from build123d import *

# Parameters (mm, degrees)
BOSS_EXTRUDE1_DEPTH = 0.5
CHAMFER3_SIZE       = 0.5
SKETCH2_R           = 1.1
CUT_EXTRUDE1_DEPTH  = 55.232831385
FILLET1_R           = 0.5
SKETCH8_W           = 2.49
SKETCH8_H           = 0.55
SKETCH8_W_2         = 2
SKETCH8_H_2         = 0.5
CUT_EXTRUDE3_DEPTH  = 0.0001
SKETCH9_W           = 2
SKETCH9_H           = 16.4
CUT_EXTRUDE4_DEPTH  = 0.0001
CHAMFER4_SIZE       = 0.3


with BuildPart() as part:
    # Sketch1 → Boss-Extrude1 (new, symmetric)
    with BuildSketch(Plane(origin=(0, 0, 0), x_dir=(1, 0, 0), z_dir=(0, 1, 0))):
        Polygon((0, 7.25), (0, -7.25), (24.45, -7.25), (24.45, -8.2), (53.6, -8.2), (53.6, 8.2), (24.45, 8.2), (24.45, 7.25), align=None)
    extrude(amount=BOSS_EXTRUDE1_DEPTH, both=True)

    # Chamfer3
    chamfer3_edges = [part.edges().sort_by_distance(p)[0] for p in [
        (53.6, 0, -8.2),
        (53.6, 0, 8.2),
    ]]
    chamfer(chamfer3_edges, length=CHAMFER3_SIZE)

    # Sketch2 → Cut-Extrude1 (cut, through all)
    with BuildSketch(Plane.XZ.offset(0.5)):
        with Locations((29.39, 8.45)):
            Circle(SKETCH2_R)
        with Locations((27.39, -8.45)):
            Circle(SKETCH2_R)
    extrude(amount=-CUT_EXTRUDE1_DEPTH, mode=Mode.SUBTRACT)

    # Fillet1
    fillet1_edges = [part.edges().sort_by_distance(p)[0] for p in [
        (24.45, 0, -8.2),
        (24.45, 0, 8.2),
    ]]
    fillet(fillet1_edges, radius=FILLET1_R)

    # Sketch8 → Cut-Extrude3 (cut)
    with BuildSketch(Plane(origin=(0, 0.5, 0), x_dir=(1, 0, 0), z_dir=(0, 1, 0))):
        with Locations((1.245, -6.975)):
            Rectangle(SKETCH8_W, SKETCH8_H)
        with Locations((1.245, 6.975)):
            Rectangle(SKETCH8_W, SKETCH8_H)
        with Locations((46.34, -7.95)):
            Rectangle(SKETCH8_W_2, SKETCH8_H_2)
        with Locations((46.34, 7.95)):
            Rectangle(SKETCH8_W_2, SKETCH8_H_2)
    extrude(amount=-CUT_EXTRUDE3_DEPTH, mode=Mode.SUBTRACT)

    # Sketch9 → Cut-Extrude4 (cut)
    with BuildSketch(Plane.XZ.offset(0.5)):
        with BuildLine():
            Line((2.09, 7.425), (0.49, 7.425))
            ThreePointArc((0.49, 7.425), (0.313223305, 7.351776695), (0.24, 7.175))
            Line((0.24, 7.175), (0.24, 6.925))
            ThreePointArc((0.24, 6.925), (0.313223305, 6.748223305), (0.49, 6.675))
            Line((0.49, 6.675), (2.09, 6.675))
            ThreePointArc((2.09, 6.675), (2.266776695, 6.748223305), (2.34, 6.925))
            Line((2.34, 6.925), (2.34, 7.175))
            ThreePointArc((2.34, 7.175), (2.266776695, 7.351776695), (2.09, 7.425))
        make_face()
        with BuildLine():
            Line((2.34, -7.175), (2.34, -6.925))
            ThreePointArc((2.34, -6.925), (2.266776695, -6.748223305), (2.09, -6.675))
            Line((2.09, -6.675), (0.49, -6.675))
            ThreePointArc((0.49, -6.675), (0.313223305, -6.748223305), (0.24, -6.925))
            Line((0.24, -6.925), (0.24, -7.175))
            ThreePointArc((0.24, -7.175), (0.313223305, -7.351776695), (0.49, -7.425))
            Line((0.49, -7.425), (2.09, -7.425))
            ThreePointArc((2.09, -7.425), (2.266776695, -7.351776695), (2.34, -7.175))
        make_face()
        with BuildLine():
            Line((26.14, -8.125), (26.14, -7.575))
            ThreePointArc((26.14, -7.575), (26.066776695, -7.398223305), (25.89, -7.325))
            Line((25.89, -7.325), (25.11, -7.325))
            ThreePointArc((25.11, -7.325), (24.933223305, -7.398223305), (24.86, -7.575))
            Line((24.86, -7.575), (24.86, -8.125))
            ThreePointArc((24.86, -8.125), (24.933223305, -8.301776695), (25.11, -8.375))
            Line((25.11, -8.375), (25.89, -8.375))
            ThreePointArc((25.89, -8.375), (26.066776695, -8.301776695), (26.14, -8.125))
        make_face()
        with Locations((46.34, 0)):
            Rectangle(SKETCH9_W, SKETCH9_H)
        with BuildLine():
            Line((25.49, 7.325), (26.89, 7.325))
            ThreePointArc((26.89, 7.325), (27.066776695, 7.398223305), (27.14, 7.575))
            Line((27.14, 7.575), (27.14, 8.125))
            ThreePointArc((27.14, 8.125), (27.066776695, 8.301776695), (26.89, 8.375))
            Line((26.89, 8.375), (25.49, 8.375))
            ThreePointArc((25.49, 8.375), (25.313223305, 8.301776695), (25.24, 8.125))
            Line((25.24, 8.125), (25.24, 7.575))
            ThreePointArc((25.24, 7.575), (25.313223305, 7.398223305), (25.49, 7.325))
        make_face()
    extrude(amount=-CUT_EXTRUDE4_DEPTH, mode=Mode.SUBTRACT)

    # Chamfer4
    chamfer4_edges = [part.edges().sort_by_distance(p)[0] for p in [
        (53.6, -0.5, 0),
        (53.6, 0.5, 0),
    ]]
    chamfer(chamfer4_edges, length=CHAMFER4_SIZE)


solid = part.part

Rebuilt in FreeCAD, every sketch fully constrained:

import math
import FreeCAD as App
import Part
import Sketcher
from FreeCAD import Vector
Q = App.Units.Quantity


def edges_at(feature, points):
    """Names of the edges that pass closest to the given points."""
    edges = feature.Shape.Edges
    near = lambda p: min(range(len(edges)), key=lambda i: edges[i].distToShape(Part.Vertex(*p))[0])
    return sorted({f"Edge{near(p) + 1}" for p in points})


def add_polygon(sketch, points):
    """Adds a closed chain of lines whose ends are joined by coincident constraints."""
    first, n = sketch.GeometryCount, len(points)
    for a, b in zip(points, points[1:] + points[:1]):
        sketch.addGeometry(Part.LineSegment(App.Vector(*a, 0), App.Vector(*b, 0)), False)
    for i in range(n):
        sketch.addConstraint(Sketcher.Constraint("Coincident", first + i, 2, first + (i + 1) % n, 1))

doc = App.newDocument("Part")
body = doc.addObject("PartDesign::Body", "Body")

sketch1 = body.newObject("Sketcher::SketchObject", "Sketch")
sketch1.AttachmentSupport = (doc.getObject("XZ_Plane"), [""])
sketch1.MapMode = "FlatFace"
add_polygon(sketch1, [(0, -7.25), (0, 7.25), (24.45, 7.25), (24.45, 8.2), (53.6, 8.2), (53.6, -8.2), (24.45, -8.2), (24.45, -7.25)])
sketch1.addConstraint([
    Sketcher.Constraint("Vertical", 0),
    Sketcher.Constraint("Horizontal", 1),
    Sketcher.Constraint("Vertical", 2),
    Sketcher.Constraint("Horizontal", 3),
    Sketcher.Constraint("Vertical", 4),
    Sketcher.Constraint("Horizontal", 5),
    Sketcher.Constraint("Vertical", 6),
    Sketcher.Constraint("Horizontal", 7),
    Sketcher.Constraint("Symmetric", 0, 2, 7, 2, -1, 1),
    Sketcher.Constraint("Symmetric", 2, 2, 5, 2, -1),
    Sketcher.Constraint("DistanceY", 0, 1, 0, 2, Q("14.5 mm")),
    Sketcher.Constraint("DistanceY", 4, 2, 4, 1, Q("16.4 mm")),
    Sketcher.Constraint("DistanceX", 1, 1, 1, 2, Q("24.45 mm")),
    Sketcher.Constraint("DistanceX", 3, 1, 3, 2, Q("29.15 mm")),
])
pad1 = body.newObject("PartDesign::Pad", "Pad")
pad1.Profile = sketch1
pad1.Length = 1
pad1.Midplane = True
doc.recompute()

chamfer = body.newObject("PartDesign::Chamfer", "Chamfer")
chamfer.Base = (pad1, edges_at(pad1, [(53.6, 0, -8.2), (53.6, 0, 8.2)]))
chamfer.Size = 0.5

sketch2 = body.newObject("Sketcher::SketchObject", "Sketch001")
sketch2.AttachmentSupport = (doc.getObject("XZ_Plane"), [""])
sketch2.MapMode = "FlatFace"
sketch2.AttachmentOffset = App.Placement(Vector(0, 0, 0.5), App.Rotation())
sketch2.addGeometry([
    Part.Circle(Vector(29.39, 8.45, 0), Vector(0, 0, 1), 1.1),
    Part.Circle(Vector(27.39, -8.45, 0), Vector(0, 0, 1), 1.1),
], False)
sketch2.addConstraint([
    Sketcher.Constraint("Equal", 0, 1),
    Sketcher.Constraint("Diameter", 0, Q("2.2 mm")),
    Sketcher.Constraint("DistanceX", 1, 3, 0, 3, Q("2 mm")),
    Sketcher.Constraint("DistanceY", 1, 3, 0, 3, Q("16.9 mm")),
    Sketcher.Constraint("DistanceX", -1, 1, 0, 3, Q("29.39 mm")),
    Sketcher.Constraint("DistanceY", -1, 1, 0, 3, Q("8.45 mm")),
])
pocket1 = body.newObject("PartDesign::Pocket", "Pocket")
pocket1.Profile = sketch2
pocket1.Type = "ThroughAll"
doc.recompute()

fillet = body.newObject("PartDesign::Fillet", "Fillet")
fillet.Base = (pocket1, edges_at(pocket1, [(24.45, 0, -8.2), (24.45, 0, 8.2)]))
fillet.Radius = 0.5

sketch3 = body.newObject("Sketcher::SketchObject", "Sketch002")
sketch3.AttachmentSupport = (doc.getObject("XZ_Plane"), [""])
sketch3.MapMode = "FlatFace"
sketch3.AttachmentOffset = App.Placement(Vector(0, 0, -0.5), App.Rotation())
add_polygon(sketch3, [(0, 6.7), (0, 7.25), (2.49, 7.25), (2.49, 6.7)])
add_polygon(sketch3, [(0, -7.25), (0, -6.7), (2.49, -6.7), (2.49, -7.25)])
add_polygon(sketch3, [(45.34, 7.7), (45.34, 8.2), (47.34, 8.2), (47.34, 7.7)])
add_polygon(sketch3, [(45.34, -8.2), (45.34, -7.7), (47.34, -7.7), (47.34, -8.2)])
sketch3.addConstraint([
    Sketcher.Constraint("Vertical", 0),
    Sketcher.Constraint("Horizontal", 1),
    Sketcher.Constraint("Vertical", 2),
    Sketcher.Constraint("Horizontal", 3),
    Sketcher.Constraint("Vertical", 4),
    Sketcher.Constraint("Horizontal", 5),
    Sketcher.Constraint("Vertical", 6),
    Sketcher.Constraint("Horizontal", 7),
    Sketcher.Constraint("Vertical", 8),
    Sketcher.Constraint("Horizontal", 9),
    Sketcher.Constraint("Vertical", 10),
    Sketcher.Constraint("Horizontal", 11),
    Sketcher.Constraint("Vertical", 12),
    Sketcher.Constraint("Horizontal", 13),
    Sketcher.Constraint("Vertical", 14),
    Sketcher.Constraint("Horizontal", 15),
    Sketcher.Constraint("Symmetric", 3, 2, 4, 2, -1, 1),
    Sketcher.Constraint("Symmetric", 1, 2, 6, 2, -1),
    Sketcher.Constraint("Symmetric", 11, 2, 12, 2, -1),
    Sketcher.Constraint("Symmetric", 9, 2, 14, 2, -1),
    Sketcher.Constraint("PointOnObject", 0, 2, -2),
    Sketcher.Constraint("DistanceX", 9, 1, 9, 2, Q("2 mm")),
    Sketcher.Constraint("DistanceY", 8, 1, 8, 2, Q("0.5 mm")),
    Sketcher.Constraint("DistanceY", 2, 2, 10, 2, Q("1 mm")),
    Sketcher.Constraint("DistanceX", 1, 1, 1, 2, Q("2.49 mm")),
    Sketcher.Constraint("DistanceY", 0, 1, 0, 2, Q("0.55 mm")),
    Sketcher.Constraint("DistanceY", -1, 1, 2, 2, Q("6.7 mm")),
    Sketcher.Constraint("DistanceX", -1, 1, 8, 2, Q("45.34 mm")),
])
pocket2 = body.newObject("PartDesign::Pocket", "Pocket001")
pocket2.Profile = sketch3
pocket2.Length = 0.0001
pocket2.Reversed = True

sketch4 = body.newObject("Sketcher::SketchObject", "Sketch003")
sketch4.AttachmentSupport = (doc.getObject("XZ_Plane"), [""])
sketch4.MapMode = "FlatFace"
sketch4.AttachmentOffset = App.Placement(Vector(0, 0, 0.5), App.Rotation())
sketch4.addGeometry(Part.LineSegment(Vector(2.09, 7.425, 0), Vector(0.49, 7.425, 0)), False)
sketch4.addGeometry(Part.ArcOfCircle(Part.Circle(Vector(0.49, 7.175, 0), Vector(0, 0, 1), 0.25), math.radians(90), math.radians(180)), False)
sketch4.addGeometry(Part.LineSegment(Vector(0.24, 7.175, 0), Vector(0.24, 6.925, 0)), False)
sketch4.addGeometry(Part.ArcOfCircle(Part.Circle(Vector(0.49, 6.925, 0), Vector(0, 0, 1), 0.25), math.radians(-180), math.radians(-90)), False)
sketch4.addGeometry(Part.LineSegment(Vector(0.49, 6.675, 0), Vector(2.09, 6.675, 0)), False)
sketch4.addGeometry(Part.ArcOfCircle(Part.Circle(Vector(2.09, 6.925, 0), Vector(0, 0, 1), 0.25), math.radians(-90), math.radians(0)), False)
sketch4.addGeometry(Part.LineSegment(Vector(2.34, 6.925, 0), Vector(2.34, 7.175, 0)), False)
sketch4.addGeometry(Part.ArcOfCircle(Part.Circle(Vector(2.09, 7.175, 0), Vector(0, 0, 1), 0.25), math.radians(0), math.radians(90)), False)
sketch4.addGeometry(Part.LineSegment(Vector(2.34, -7.175, 0), Vector(2.34, -6.925, 0)), False)
sketch4.addGeometry(Part.ArcOfCircle(Part.Circle(Vector(2.09, -6.925, 0), Vector(0, 0, 1), 0.25), math.radians(0), math.radians(90)), False)
sketch4.addGeometry(Part.LineSegment(Vector(2.09, -6.675, 0), Vector(0.49, -6.675, 0)), False)
sketch4.addGeometry(Part.ArcOfCircle(Part.Circle(Vector(0.49, -6.925, 0), Vector(0, 0, 1), 0.25), math.radians(90), math.radians(180)), False)
sketch4.addGeometry(Part.LineSegment(Vector(0.24, -6.925, 0), Vector(0.24, -7.175, 0)), False)
sketch4.addGeometry(Part.ArcOfCircle(Part.Circle(Vector(0.49, -7.175, 0), Vector(0, 0, 1), 0.25), math.radians(-180), math.radians(-90)), False)
sketch4.addGeometry(Part.LineSegment(Vector(0.49, -7.425, 0), Vector(2.09, -7.425, 0)), False)
sketch4.addGeometry(Part.ArcOfCircle(Part.Circle(Vector(2.09, -7.175, 0), Vector(0, 0, 1), 0.25), math.radians(-90), math.radians(0)), False)
sketch4.addGeometry(Part.LineSegment(Vector(26.14, -8.125, 0), Vector(26.14, -7.575, 0)), False)
sketch4.addGeometry(Part.ArcOfCircle(Part.Circle(Vector(25.89, -7.575, 0), Vector(0, 0, 1), 0.25), math.radians(0), math.radians(90)), False)
sketch4.addGeometry(Part.LineSegment(Vector(25.89, -7.325, 0), Vector(25.11, -7.325, 0)), False)
sketch4.addGeometry(Part.ArcOfCircle(Part.Circle(Vector(25.11, -7.575, 0), Vector(0, 0, 1), 0.25), math.radians(90), math.radians(180)), False)
sketch4.addGeometry(Part.LineSegment(Vector(24.86, -7.575, 0), Vector(24.86, -8.125, 0)), False)
sketch4.addGeometry(Part.ArcOfCircle(Part.Circle(Vector(25.11, -8.125, 0), Vector(0, 0, 1), 0.25), math.radians(-180), math.radians(-90)), False)
sketch4.addGeometry(Part.LineSegment(Vector(25.11, -8.375, 0), Vector(25.89, -8.375, 0)), False)
sketch4.addGeometry(Part.ArcOfCircle(Part.Circle(Vector(25.89, -8.125, 0), Vector(0, 0, 1), 0.25), math.radians(-90), math.radians(0)), False)
add_polygon(sketch4, [(45.34, 8.2), (45.34, -8.2), (47.34, -8.2), (47.34, 8.2)])
sketch4.addGeometry(Part.LineSegment(Vector(25.49, 7.325, 0), Vector(26.89, 7.325, 0)), False)
sketch4.addGeometry(Part.ArcOfCircle(Part.Circle(Vector(26.89, 7.575, 0), Vector(0, 0, 1), 0.25), math.radians(-90), math.radians(0)), False)
sketch4.addGeometry(Part.LineSegment(Vector(27.14, 7.575, 0), Vector(27.14, 8.125, 0)), False)
sketch4.addGeometry(Part.ArcOfCircle(Part.Circle(Vector(26.89, 8.125, 0), Vector(0, 0, 1), 0.25), math.radians(0), math.radians(90)), False)
sketch4.addGeometry(Part.LineSegment(Vector(26.89, 8.375, 0), Vector(25.49, 8.375, 0)), False)
sketch4.addGeometry(Part.ArcOfCircle(Part.Circle(Vector(25.49, 8.125, 0), Vector(0, 0, 1), 0.25), math.radians(90), math.radians(180)), False)
sketch4.addGeometry(Part.LineSegment(Vector(25.24, 8.125, 0), Vector(25.24, 7.575, 0)), False)
sketch4.addGeometry(Part.ArcOfCircle(Part.Circle(Vector(25.49, 7.575, 0), Vector(0, 0, 1), 0.25), math.radians(-180), math.radians(-90)), False)
sketch4.addConstraint([
    Sketcher.Constraint("Tangent", 0, 2, 1, 1),
    Sketcher.Constraint("Tangent", 1, 2, 2, 1),
    Sketcher.Constraint("Tangent", 2, 2, 3, 1),
    Sketcher.Constraint("Tangent", 3, 2, 4, 1),
    Sketcher.Constraint("Tangent", 4, 2, 5, 1),
    Sketcher.Constraint("Tangent", 5, 2, 6, 1),
    Sketcher.Constraint("Tangent", 6, 2, 7, 1),
    Sketcher.Constraint("Tangent", 7, 2, 0, 1),
    Sketcher.Constraint("Tangent", 8, 2, 9, 1),
    Sketcher.Constraint("Tangent", 9, 2, 10, 1),
    Sketcher.Constraint("Tangent", 10, 2, 11, 1),
    Sketcher.Constraint("Tangent", 11, 2, 12, 1),
    Sketcher.Constraint("Tangent", 12, 2, 13, 1),
    Sketcher.Constraint("Tangent", 13, 2, 14, 1),
    Sketcher.Constraint("Tangent", 14, 2, 15, 1),
    Sketcher.Constraint("Tangent", 15, 2, 8, 1),
    Sketcher.Constraint("Tangent", 16, 2, 17, 1),
    Sketcher.Constraint("Tangent", 17, 2, 18, 1),
    Sketcher.Constraint("Tangent", 18, 2, 19, 1),
    Sketcher.Constraint("Tangent", 19, 2, 20, 1),
    Sketcher.Constraint("Tangent", 20, 2, 21, 1),
    Sketcher.Constraint("Tangent", 21, 2, 22, 1),
    Sketcher.Constraint("Tangent", 22, 2, 23, 1),
    Sketcher.Constraint("Tangent", 23, 2, 16, 1),
    Sketcher.Constraint("Tangent", 28, 2, 29, 1),
    Sketcher.Constraint("Tangent", 29, 2, 30, 1),
    Sketcher.Constraint("Tangent", 30, 2, 31, 1),
    Sketcher.Constraint("Tangent", 31, 2, 32, 1),
    Sketcher.Constraint("Tangent", 32, 2, 33, 1),
    Sketcher.Constraint("Tangent", 33, 2, 34, 1),
    Sketcher.Constraint("Tangent", 34, 2, 35, 1),
    Sketcher.Constraint("Tangent", 35, 2, 28, 1),
    Sketcher.Constraint("Horizontal", 0),
    Sketcher.Constraint("Vertical", 2),
    Sketcher.Constraint("Horizontal", 4),
    Sketcher.Constraint("Vertical", 6),
    Sketcher.Constraint("Vertical", 8),
    Sketcher.Constraint("Horizontal", 10),
    Sketcher.Constraint("Vertical", 12),
    Sketcher.Constraint("Horizontal", 14),
    Sketcher.Constraint("Vertical", 16),
    Sketcher.Constraint("Horizontal", 18),
    Sketcher.Constraint("Vertical", 20),
    Sketcher.Constraint("Horizontal", 22),
    Sketcher.Constraint("Vertical", 24),
    Sketcher.Constraint("Horizontal", 25),
    Sketcher.Constraint("Vertical", 26),
    Sketcher.Constraint("Horizontal", 27),
    Sketcher.Constraint("Horizontal", 28),
    Sketcher.Constraint("Vertical", 30),
    Sketcher.Constraint("Horizontal", 32),
    Sketcher.Constraint("Vertical", 34),
    Sketcher.Constraint("Equal", 1, 3),
    Sketcher.Constraint("Equal", 3, 5),
    Sketcher.Constraint("Equal", 5, 7),
    Sketcher.Constraint("Equal", 7, 9),
    Sketcher.Constraint("Equal", 9, 11),
    Sketcher.Constraint("Equal", 11, 13),
    Sketcher.Constraint("Equal", 13, 15),
    Sketcher.Constraint("Equal", 15, 17),
    Sketcher.Constraint("Equal", 17, 19),
    Sketcher.Constraint("Equal", 19, 21),
    Sketcher.Constraint("Equal", 21, 23),
    Sketcher.Constraint("Equal", 23, 29),
    Sketcher.Constraint("Equal", 29, 31),
    Sketcher.Constraint("Equal", 31, 33),
    Sketcher.Constraint("Equal", 33, 35),
    Sketcher.Constraint("Symmetric", 5, 3, 9, 3, -1),
    Sketcher.Constraint("Symmetric", 1, 3, 13, 3, -1),
    Sketcher.Constraint("Equal", 20, 30),
    Sketcher.Constraint("DistanceX", 25, 1, 25, 2, Q("2 mm")),
    Sketcher.Constraint("Radius", 1, Q("0.25 mm")),
    Sketcher.Constraint("DistanceX", 0, 2, 0, 1, Q("1.6 mm")),
    Sketcher.Constraint("DistanceX", 28, 1, 28, 2, Q("1.4 mm")),
    Sketcher.Constraint("DistanceY", 24, 2, 24, 1, Q("16.4 mm")),
    Sketcher.Constraint("DistanceX", 17, 3, 29, 3, Q("1 mm")),
    Sketcher.Constraint("DistanceX", 18, 2, 18, 1, Q("0.78 mm")),
    Sketcher.Constraint("DistanceY", 2, 2, 2, 1, Q("0.25 mm")),
    Sketcher.Constraint("DistanceY", 16, 1, 16, 2, Q("0.55 mm")),
    Sketcher.Constraint("DistanceY", 24, 2, -1, 1, Q("8.2 mm")),
    Sketcher.Constraint("DistanceY", 9, 3, 7, 3, Q("14.1 mm")),
    Sketcher.Constraint("DistanceX", 15, 3, 17, 3, Q("23.8 mm")),
    Sketcher.Constraint("DistanceY", 17, 3, 15, 3, Q("0.4 mm")),
    Sketcher.Constraint("DistanceY", 23, 3, 29, 3, Q("15.7 mm")),
    Sketcher.Constraint("DistanceX", 23, 2, 24, 2, Q("19.2 mm")),
    Sketcher.Constraint("DistanceX", -1, 1, 1, 3, Q("0.49 mm")),
])
pocket3 = body.newObject("PartDesign::Pocket", "Pocket002")
pocket3.Profile = sketch4
pocket3.Length = 0.0001
doc.recompute()

chamfer2 = body.newObject("PartDesign::Chamfer", "Chamfer001")
chamfer2.Base = (pocket3, edges_at(pocket3, [(53.6, -0.5, 0), (53.6, 0.5, 0)]))
chamfer2.Size = 0.3

doc.recompute()
